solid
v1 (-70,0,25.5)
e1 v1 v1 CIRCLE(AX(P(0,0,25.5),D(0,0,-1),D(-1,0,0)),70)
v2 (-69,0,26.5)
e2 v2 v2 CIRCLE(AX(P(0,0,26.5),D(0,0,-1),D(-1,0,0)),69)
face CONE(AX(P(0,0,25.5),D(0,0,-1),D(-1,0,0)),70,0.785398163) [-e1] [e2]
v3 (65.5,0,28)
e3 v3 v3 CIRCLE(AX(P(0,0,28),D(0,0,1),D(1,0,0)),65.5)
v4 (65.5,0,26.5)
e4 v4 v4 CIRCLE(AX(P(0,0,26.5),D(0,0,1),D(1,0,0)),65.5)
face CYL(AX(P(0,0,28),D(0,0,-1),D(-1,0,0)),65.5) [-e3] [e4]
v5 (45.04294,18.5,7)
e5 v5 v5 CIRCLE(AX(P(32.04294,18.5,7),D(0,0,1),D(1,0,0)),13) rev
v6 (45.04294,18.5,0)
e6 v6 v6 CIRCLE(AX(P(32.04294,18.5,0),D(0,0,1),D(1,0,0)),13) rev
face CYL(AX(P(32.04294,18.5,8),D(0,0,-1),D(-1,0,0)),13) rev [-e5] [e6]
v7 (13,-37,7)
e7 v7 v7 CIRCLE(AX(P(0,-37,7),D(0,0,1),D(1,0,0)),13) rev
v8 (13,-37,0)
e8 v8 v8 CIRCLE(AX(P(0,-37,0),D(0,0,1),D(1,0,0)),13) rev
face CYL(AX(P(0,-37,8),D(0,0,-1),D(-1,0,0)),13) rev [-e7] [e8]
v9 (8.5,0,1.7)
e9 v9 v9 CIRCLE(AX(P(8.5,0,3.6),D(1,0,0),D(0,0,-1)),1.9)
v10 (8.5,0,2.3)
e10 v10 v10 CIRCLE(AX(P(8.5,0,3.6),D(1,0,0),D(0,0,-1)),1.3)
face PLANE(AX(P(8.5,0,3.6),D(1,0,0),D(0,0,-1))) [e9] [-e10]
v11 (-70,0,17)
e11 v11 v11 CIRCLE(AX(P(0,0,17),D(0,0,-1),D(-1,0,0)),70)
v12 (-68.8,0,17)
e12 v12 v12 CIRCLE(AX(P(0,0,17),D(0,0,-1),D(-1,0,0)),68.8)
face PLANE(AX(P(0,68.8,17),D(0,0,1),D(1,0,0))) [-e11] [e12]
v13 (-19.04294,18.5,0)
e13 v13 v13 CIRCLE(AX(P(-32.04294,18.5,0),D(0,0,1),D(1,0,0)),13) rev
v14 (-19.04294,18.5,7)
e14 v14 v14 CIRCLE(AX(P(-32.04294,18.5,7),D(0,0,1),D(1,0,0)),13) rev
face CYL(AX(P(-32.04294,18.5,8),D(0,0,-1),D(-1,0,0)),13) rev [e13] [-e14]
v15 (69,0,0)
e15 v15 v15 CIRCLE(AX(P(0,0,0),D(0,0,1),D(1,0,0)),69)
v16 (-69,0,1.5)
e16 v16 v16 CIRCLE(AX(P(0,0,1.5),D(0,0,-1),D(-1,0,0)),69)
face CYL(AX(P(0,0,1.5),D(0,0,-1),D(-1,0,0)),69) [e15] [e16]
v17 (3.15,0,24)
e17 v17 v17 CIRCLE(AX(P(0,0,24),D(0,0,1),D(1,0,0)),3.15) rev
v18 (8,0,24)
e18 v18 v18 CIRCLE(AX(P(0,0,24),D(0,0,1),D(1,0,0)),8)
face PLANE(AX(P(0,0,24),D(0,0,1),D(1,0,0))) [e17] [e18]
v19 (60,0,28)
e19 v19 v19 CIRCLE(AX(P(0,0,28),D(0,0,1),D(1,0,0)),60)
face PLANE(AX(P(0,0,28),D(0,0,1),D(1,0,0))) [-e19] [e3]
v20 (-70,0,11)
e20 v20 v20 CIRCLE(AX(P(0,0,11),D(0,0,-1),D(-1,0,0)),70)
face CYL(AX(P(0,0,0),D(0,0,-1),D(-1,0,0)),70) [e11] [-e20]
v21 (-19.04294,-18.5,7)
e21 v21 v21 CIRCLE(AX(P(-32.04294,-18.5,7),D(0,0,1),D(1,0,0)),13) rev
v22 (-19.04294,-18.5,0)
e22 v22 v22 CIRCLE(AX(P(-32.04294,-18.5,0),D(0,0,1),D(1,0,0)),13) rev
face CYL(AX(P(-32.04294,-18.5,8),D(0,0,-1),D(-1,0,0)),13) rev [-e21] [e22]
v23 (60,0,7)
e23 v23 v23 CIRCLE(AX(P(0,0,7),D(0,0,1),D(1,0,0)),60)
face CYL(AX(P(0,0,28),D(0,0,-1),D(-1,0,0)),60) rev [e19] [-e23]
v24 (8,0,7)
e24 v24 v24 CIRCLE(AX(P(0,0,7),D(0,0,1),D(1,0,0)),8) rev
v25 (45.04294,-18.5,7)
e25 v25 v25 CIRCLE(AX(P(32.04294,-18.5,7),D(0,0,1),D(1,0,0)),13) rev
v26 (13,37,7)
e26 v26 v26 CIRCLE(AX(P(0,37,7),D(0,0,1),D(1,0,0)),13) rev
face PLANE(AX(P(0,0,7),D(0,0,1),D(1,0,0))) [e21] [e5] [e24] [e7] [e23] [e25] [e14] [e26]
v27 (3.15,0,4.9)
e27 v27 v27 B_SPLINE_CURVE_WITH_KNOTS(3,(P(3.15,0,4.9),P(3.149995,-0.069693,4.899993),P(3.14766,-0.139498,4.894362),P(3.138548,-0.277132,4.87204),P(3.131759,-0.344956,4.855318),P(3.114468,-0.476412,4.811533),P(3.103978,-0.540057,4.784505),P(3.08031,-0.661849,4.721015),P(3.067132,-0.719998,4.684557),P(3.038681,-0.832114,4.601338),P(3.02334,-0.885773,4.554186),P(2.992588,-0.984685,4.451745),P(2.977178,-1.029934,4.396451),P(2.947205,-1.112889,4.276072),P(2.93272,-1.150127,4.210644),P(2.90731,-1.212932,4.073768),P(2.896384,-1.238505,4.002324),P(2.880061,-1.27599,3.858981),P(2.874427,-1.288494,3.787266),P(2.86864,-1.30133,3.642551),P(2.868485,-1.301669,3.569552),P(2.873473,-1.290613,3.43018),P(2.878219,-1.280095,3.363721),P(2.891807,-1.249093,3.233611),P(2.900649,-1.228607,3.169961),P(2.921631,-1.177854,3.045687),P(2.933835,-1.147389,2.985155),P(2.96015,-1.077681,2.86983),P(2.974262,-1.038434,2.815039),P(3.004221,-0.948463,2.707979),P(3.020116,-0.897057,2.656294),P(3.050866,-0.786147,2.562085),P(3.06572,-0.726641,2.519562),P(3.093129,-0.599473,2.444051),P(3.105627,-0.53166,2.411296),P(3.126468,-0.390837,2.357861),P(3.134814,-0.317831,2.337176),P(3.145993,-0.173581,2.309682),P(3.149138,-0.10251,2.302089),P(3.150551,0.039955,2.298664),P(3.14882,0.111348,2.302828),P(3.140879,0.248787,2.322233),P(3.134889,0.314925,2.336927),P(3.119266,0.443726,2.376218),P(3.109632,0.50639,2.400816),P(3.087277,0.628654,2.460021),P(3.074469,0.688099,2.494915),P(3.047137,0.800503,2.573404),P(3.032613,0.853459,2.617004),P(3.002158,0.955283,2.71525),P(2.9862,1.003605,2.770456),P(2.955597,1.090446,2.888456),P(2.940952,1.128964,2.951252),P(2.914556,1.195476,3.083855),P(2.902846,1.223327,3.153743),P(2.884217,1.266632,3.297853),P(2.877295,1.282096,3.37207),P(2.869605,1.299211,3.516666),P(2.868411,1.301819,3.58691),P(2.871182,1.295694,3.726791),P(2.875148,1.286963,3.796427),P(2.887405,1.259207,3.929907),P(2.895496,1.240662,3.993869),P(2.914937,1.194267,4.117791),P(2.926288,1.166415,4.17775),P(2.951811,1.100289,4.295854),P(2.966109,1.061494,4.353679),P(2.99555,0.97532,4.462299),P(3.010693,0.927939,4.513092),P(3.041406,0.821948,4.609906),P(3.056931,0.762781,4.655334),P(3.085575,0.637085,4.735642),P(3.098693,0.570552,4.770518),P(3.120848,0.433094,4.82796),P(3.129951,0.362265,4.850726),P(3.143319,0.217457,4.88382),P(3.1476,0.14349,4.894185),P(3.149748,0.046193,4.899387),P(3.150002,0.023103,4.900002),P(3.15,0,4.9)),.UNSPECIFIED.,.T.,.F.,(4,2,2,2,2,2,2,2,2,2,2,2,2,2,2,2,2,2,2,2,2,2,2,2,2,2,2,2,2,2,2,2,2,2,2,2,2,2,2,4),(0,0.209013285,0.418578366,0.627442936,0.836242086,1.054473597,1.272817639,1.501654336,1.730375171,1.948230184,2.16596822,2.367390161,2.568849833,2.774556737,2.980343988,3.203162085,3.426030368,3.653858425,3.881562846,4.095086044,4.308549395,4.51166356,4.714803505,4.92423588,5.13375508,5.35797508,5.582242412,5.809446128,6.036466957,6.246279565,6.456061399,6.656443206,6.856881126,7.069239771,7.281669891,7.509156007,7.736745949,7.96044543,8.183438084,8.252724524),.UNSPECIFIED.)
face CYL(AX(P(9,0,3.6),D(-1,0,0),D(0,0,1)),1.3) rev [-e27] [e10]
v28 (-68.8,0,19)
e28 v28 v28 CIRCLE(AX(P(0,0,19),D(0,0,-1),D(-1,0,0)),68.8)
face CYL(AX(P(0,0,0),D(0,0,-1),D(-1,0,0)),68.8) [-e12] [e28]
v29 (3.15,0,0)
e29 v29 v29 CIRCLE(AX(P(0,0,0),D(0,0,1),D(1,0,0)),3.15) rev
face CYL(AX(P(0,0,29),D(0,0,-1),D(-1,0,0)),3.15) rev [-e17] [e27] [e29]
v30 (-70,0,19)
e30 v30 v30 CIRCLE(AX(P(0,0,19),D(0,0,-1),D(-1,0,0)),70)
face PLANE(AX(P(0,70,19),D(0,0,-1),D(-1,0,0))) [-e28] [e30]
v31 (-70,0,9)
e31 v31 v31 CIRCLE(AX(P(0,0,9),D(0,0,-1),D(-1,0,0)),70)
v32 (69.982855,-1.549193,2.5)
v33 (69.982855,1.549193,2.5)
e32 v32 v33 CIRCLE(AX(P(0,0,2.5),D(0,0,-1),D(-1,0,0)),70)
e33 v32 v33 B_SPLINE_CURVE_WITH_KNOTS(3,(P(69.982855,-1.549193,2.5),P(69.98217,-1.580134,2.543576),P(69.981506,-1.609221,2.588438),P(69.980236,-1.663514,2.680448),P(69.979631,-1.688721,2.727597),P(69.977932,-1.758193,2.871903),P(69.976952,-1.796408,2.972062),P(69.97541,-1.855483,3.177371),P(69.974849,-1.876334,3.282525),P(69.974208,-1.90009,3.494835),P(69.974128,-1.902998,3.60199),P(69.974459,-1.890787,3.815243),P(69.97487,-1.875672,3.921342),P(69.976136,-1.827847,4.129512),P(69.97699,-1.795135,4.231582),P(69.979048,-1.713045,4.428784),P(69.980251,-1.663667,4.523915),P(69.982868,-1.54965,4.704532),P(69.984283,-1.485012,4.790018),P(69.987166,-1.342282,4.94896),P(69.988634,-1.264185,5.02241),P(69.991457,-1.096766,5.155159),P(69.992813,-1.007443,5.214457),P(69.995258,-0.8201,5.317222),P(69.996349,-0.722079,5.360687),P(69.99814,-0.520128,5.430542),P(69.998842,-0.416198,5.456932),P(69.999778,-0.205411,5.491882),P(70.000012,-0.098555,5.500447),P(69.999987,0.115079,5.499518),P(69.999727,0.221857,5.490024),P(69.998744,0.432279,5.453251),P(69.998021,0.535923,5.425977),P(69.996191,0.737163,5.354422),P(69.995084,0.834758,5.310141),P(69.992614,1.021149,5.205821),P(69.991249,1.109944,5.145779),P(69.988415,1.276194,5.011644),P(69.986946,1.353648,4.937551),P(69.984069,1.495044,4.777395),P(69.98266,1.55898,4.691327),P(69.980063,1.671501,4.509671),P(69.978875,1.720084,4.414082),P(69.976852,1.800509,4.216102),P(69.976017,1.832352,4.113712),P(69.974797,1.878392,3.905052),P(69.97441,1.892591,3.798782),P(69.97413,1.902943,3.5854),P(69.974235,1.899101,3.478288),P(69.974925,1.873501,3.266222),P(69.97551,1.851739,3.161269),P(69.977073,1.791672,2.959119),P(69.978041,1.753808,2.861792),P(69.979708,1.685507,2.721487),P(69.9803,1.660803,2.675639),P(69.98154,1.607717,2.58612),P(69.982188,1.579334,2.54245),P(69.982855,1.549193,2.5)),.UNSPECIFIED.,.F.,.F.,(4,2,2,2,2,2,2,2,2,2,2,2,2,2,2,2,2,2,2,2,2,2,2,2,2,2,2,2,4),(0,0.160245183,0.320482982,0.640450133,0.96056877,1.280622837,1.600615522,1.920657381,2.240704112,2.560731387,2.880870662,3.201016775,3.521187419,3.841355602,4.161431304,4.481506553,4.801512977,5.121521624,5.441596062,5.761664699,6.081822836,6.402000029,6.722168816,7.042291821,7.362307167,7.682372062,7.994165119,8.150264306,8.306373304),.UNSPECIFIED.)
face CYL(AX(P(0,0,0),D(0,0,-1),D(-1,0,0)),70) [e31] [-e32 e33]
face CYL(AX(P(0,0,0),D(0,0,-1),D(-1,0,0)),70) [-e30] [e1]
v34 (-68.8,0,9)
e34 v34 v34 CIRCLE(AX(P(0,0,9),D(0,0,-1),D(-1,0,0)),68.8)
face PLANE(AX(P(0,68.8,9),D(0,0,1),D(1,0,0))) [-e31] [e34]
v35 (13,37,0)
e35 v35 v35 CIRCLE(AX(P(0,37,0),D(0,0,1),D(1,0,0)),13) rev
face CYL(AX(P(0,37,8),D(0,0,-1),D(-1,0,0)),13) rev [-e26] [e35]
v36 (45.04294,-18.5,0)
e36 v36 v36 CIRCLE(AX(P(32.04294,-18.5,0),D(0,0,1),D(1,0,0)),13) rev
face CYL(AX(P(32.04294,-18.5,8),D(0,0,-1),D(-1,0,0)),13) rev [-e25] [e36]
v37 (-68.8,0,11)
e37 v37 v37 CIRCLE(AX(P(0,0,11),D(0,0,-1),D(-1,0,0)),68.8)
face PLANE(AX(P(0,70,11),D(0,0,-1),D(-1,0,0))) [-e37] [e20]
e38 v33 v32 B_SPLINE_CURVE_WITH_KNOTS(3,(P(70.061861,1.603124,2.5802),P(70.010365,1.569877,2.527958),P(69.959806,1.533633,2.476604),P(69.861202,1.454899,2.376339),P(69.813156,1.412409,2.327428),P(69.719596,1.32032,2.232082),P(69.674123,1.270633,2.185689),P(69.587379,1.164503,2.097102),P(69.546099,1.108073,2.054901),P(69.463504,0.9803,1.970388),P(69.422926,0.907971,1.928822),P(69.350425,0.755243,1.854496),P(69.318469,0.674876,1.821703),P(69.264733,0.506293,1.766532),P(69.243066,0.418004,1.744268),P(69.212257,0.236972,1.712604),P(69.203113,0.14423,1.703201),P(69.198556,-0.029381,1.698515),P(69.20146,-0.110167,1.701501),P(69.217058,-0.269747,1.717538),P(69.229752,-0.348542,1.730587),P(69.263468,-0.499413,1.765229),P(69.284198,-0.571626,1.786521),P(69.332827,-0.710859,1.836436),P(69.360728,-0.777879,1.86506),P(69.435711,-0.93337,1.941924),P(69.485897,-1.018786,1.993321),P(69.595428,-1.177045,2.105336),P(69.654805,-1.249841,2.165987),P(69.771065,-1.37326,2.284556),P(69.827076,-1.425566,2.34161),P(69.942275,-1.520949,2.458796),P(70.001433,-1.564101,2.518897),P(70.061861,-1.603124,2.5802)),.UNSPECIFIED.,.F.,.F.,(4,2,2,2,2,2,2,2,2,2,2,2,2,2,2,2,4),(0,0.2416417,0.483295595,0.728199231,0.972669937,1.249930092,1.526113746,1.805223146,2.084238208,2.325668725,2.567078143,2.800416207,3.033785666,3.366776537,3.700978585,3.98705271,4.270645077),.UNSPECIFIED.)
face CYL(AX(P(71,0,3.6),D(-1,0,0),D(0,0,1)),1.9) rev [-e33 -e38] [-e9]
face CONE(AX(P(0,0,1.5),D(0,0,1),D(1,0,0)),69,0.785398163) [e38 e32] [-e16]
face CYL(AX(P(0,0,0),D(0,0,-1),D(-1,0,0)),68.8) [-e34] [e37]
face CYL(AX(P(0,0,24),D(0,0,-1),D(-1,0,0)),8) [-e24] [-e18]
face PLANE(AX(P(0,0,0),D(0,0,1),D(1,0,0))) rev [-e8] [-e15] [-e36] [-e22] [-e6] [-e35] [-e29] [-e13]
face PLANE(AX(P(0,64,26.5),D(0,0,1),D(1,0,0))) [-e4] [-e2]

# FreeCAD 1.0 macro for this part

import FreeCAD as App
import Part
import Sketcher
Q = App.Units.Quantity


def add_polygon(sketch, points):
    """Adds a closed chain of lines whose ends are joined by coincident constraints."""
    first, n = sketch.GeometryCount, len(points)
    for a, b in zip(points, points[1:] + points[:1]):
        sketch.addGeometry(Part.LineSegment(App.Vector(*a, 0), App.Vector(*b, 0)), False)
    for i in range(n):
        sketch.addConstraint(Sketcher.Constraint("Coincident", first + i, 2, first + (i + 1) % n, 1))

doc = App.newDocument("Part")
body = doc.addObject("PartDesign::Body", "Body")

sketch1 = body.newObject("Sketcher::SketchObject", "Sketch")
sketch1.AttachmentSupport = (doc.getObject("XY_Plane"), [""])
sketch1.MapMode = "FlatFace"
sketch1.addGeometry([
    Part.Circle(App.Vector(0, 0, 0), App.Vector(0, 0, 1), 64),
    Part.Circle(App.Vector(0, 0, 0), App.Vector(0, 0, 1), 60),
], False)
sketch1.addConstraint([
    Sketcher.Constraint("Coincident", 0, 3, -1, 1),
    Sketcher.Constraint("Coincident", 1, 3, -1, 1),
    Sketcher.Constraint("Diameter", 0, Q("128 mm")),
    Sketcher.Constraint("Diameter", 1, Q("120 mm")),
])
pad1 = body.newObject("PartDesign::Pad", "Pad")
pad1.Profile = sketch1
pad1.Length = 28

sketch2 = body.newObject("Sketcher::SketchObject", "Sketch001")
sketch2.AttachmentSupport = (doc.getObject("XY_Plane"), [""])
sketch2.MapMode = "FlatFace"
sketch2.addGeometry([
    Part.Circle(App.Vector(0, 0, 0), App.Vector(0, 0, 1), 65.5),
    Part.Circle(App.Vector(0, 0, 0), App.Vector(0, 0, 1), 63),
], False)
sketch2.addConstraint([
    Sketcher.Constraint("Coincident", 0, 3, -1, 1),
    Sketcher.Constraint("Coincident", 1, 3, -1, 1),
    Sketcher.Constraint("Diameter", 0, Q("131 mm")),
    Sketcher.Constraint("Diameter", 1, Q("126 mm")),
])
pad2 = body.newObject("PartDesign::Pad", "Pad001")
pad2.Profile = sketch2
pad2.Length = 1.5

sketch3 = body.newObject("Sketcher::SketchObject", "Sketch002")
sketch3.AttachmentSupport = (doc.getObject("XY_Plane"), [""])
sketch3.MapMode = "FlatFace"
sketch3.AttachmentOffset = App.Placement(App.Vector(0, 0, 26.5), App.Rotation())
sketch3.addGeometry([
    Part.Circle(App.Vector(0, 0, 0), App.Vector(0, 0, 1), 65.5),
    Part.Circle(App.Vector(0, 0, 0), App.Vector(0, 0, 1), 63),
], False)
sketch3.addConstraint([
    Sketcher.Constraint("Coincident", 0, 3, -1, 1),
    Sketcher.Constraint("Coincident", 1, 3, -1, 1),
    Sketcher.Constraint("Diameter", 0, Q("131 mm")),
    Sketcher.Constraint("Diameter", 1, Q("126 mm")),
])
pad3 = body.newObject("PartDesign::Pad", "Pad002")
pad3.Profile = sketch3
pad3.Length = 1.5

sketch4 = body.newObject("Sketcher::SketchObject", "Sketch003")
sketch4.AttachmentSupport = (doc.getObject("XY_Plane"), [""])
sketch4.MapMode = "FlatFace"
sketch4.addGeometry(Part.Circle(App.Vector(0, 0, 0), App.Vector(0, 0, 1), 61), False)
sketch4.addConstraint([
    Sketcher.Constraint("Coincident", 0, 3, -1, 1),
    Sketcher.Constraint("Diameter", 0, Q("122 mm")),
])
pad4 = body.newObject("PartDesign::Pad", "Pad003")
pad4.Profile = sketch4
pad4.Length = 7

sketch5 = body.newObject("Sketcher::SketchObject", "Sketch004")
sketch5.AttachmentSupport = (doc.getObject("XY_Plane"), [""])
sketch5.MapMode = "FlatFace"
sketch5.addGeometry(Part.Circle(App.Vector(0, 0, 0), App.Vector(0, 0, 1), 8), False)
sketch5.addConstraint([
    Sketcher.Constraint("Coincident", 0, 3, -1, 1),
    Sketcher.Constraint("Diameter", 0, Q("16 mm")),
])
pad5 = body.newObject("PartDesign::Pad", "Pad004")
pad5.Profile = sketch5
pad5.Length = 24

sketch6 = body.newObject("Sketcher::SketchObject", "Sketch005")
sketch6.AttachmentSupport = (doc.getObject("XY_Plane"), [""])
sketch6.MapMode = "FlatFace"
sketch6.AttachmentOffset = App.Placement(App.Vector(0, 0, -1), App.Rotation())
sketch6.addGeometry([
    Part.Circle(App.Vector(32.04294, 18.5, 0), App.Vector(0, 0, 1), 13),
    Part.Circle(App.Vector(0, 37, 0), App.Vector(0, 0, 1), 13),
    Part.Circle(App.Vector(-32.04294, 18.5, 0), App.Vector(0, 0, 1), 13),
    Part.Circle(App.Vector(-32.04294, -18.5, 0), App.Vector(0, 0, 1), 13),
    Part.Circle(App.Vector(0, -37, 0), App.Vector(0, 0, 1), 13),
    Part.Circle(App.Vector(32.04294, -18.5, 0), App.Vector(0, 0, 1), 13),
], False)
sketch6.addConstraint([
    Sketcher.Constraint("Equal", 0, 1),
    Sketcher.Constraint("Equal", 1, 2),
    Sketcher.Constraint("Equal", 2, 3),
    Sketcher.Constraint("Equal", 3, 4),
    Sketcher.Constraint("Equal", 4, 5),
    Sketcher.Constraint("Symmetric", 0, 3, 3, 3, -1, 1),
    Sketcher.Constraint("Symmetric", 1, 3, 4, 3, -1, 1),
    Sketcher.Constraint("Symmetric", 2, 3, 5, 3, -1, 1),
    Sketcher.Constraint("Symmetric", 0, 3, 2, 3, -2),
    Sketcher.Constraint("PointOnObject", 1, 3, -2),
    Sketcher.Constraint("Diameter", 0, Q("26 mm")),
    Sketcher.Constraint("DistanceY", -1, 1, 1, 3, Q("37 mm")),
    Sketcher.Constraint("DistanceY", 3, 3, 2, 3, Q("37 mm")),
    Sketcher.Constraint("DistanceX", -1, 1, 0, 3, Q("32.04294 mm")),
])
pocket1 = body.newObject("PartDesign::Pocket", "Pocket")
pocket1.Profile = sketch6
pocket1.Length = 9
pocket1.Reversed = True

sketch7 = body.newObject("Sketcher::SketchObject", "Sketch006")
sketch7.AttachmentSupport = (doc.getObject("XY_Plane"), [""])
sketch7.MapMode = "FlatFace"
sketch7.AttachmentOffset = App.Placement(App.Vector(0, 0, -1), App.Rotation())
sketch7.addGeometry(Part.Circle(App.Vector(0, 0, 0), App.Vector(0, 0, 1), 3.15), False)
sketch7.addConstraint([
    Sketcher.Constraint("Coincident", 0, 3, -1, 1),
    Sketcher.Constraint("Diameter", 0, Q("6.3 mm")),
])
pocket2 = body.newObject("PartDesign::Pocket", "Pocket001")
pocket2.Profile = sketch7
pocket2.Length = 30
pocket2.Reversed = True

sketch8 = body.newObject("Sketcher::SketchObject", "Sketch007")
sketch8.AttachmentSupport = (doc.getObject("YZ_Plane"), [""])
sketch8.MapMode = "FlatFace"
add_polygon(sketch8, [(64, 26.5), (64, 1.5), (69, 1.5), (70, 2.5), (70, 9), (68.8, 9), (68.8, 11), (70, 11), (70, 17), (68.8, 17), (68.8, 19), (70, 19), (70, 25.5), (69, 26.5)])
sketch8.addConstraint([
    Sketcher.Constraint("Vertical", 0),
    Sketcher.Constraint("Horizontal", 1),
    Sketcher.Constraint("Vertical", 3),
    Sketcher.Constraint("Horizontal", 4),
    Sketcher.Constraint("Vertical", 5),
    Sketcher.Constraint("Horizontal", 6),
    Sketcher.Constraint("Vertical", 7),
    Sketcher.Constraint("Horizontal", 8),
    Sketcher.Constraint("Vertical", 9),
    Sketcher.Constraint("Horizontal", 10),
    Sketcher.Constraint("Vertical", 11),
    Sketcher.Constraint("Horizontal", 13),
    Sketcher.Constraint("Perpendicular", 2, 12),
    Sketcher.Constraint("Vertical", 3, 2, 6, 2),
    Sketcher.Constraint("Vertical", 5, 2, 8, 2),
    Sketcher.Constraint("Vertical", 7, 2, 10, 2),
    Sketcher.Constraint("Vertical", 1, 2, 12, 2),
    Sketcher.Constraint("Equal", 5, 9),
    Sketcher.Constraint("Equal", 3, 11),
    Sketcher.Constraint("Equal", 2, 12),
    Sketcher.Constraint("DistanceX", 1, 1, 1, 2, Q("5 mm")),
    Sketcher.Constraint("DistanceY", 0, 2, 0, 1, Q("25 mm")),
    Sketcher.Constraint("DistanceY", 5, 1, 5, 2, Q("2 mm")),
    Sketcher.Constraint("DistanceY", 7, 1, 7, 2, Q("6 mm")),
    Sketcher.Constraint("DistanceX", 4, 2, 4, 1, Q("1.2 mm")),
    Sketcher.Constraint("DistanceY", 3, 1, 3, 2, Q("6.5 mm")),
    Sketcher.Constraint("DistanceX", -1, 1, 0, 2, Q("64 mm")),
    Sketcher.Constraint("DistanceY", -1, 1, 3, 2, Q("9 mm")),
])
revolution = body.newObject("PartDesign::Revolution", "Revolution")
revolution.Profile = sketch8
revolution.ReferenceAxis = (sketch8, ["V_Axis"])
revolution.Angle = 360

sketch9 = body.newObject("Sketcher::SketchObject", "Sketch008")
sketch9.AttachmentSupport = (doc.getObject("XY_Plane"), [""])
sketch9.MapMode = "FlatFace"
sketch9.addGeometry([
    Part.Circle(App.Vector(0, 0, 0), App.Vector(0, 0, 1), 69),
    Part.Circle(App.Vector(0, 0, 0), App.Vector(0, 0, 1), 64),
], False)
sketch9.addConstraint([
    Sketcher.Constraint("Coincident", 0, 3, -1, 1),
    Sketcher.Constraint("Coincident", 1, 3, -1, 1),
    Sketcher.Constraint("Diameter", 0, Q("138 mm")),
    Sketcher.Constraint("Diameter", 1, Q("128 mm")),
])
pad6 = body.newObject("PartDesign::Pad", "Pad005")
pad6.Profile = sketch9
pad6.Length = 1.5

sketch10 = body.newObject("Sketcher::SketchObject", "Sketch009")
sketch10.AttachmentSupport = (doc.getObject("YZ_Plane"), [""])
sketch10.MapMode = "FlatFace"
sketch10.addGeometry(Part.Circle(App.Vector(0, 3.6, 0), App.Vector(0, 0, 1), 1.3), False)
sketch10.addConstraint([
    Sketcher.Constraint("PointOnObject", 0, 3, -2),
    Sketcher.Constraint("Diameter", 0, Q("2.6 mm")),
    Sketcher.Constraint("DistanceY", -1, 1, 0, 3, Q("3.6 mm")),
])
pocket3 = body.newObject("PartDesign::Pocket", "Pocket002")
pocket3.Profile = sketch10
pocket3.Length = 9
pocket3.Reversed = True

sketch11 = body.newObject("Sketcher::SketchObject", "Sketch010")
sketch11.AttachmentSupport = (doc.getObject("YZ_Plane"), [""])
sketch11.MapMode = "FlatFace"
sketch11.AttachmentOffset = App.Placement(App.Vector(0, 0, 8.5), App.Rotation())
sketch11.addGeometry(Part.Circle(App.Vector(0, 3.6, 0), App.Vector(0, 0, 1), 1.9), False)
sketch11.addConstraint([
    Sketcher.Constraint("PointOnObject", 0, 3, -2),
    Sketcher.Constraint("Diameter", 0, Q("3.8 mm")),
    Sketcher.Constraint("DistanceY", -1, 1, 0, 3, Q("3.6 mm")),
])
pocket4 = body.newObject("PartDesign::Pocket", "Pocket003")
pocket4.Profile = sketch11
pocket4.Length = 62.5
pocket4.Reversed = True

doc.recompute()
